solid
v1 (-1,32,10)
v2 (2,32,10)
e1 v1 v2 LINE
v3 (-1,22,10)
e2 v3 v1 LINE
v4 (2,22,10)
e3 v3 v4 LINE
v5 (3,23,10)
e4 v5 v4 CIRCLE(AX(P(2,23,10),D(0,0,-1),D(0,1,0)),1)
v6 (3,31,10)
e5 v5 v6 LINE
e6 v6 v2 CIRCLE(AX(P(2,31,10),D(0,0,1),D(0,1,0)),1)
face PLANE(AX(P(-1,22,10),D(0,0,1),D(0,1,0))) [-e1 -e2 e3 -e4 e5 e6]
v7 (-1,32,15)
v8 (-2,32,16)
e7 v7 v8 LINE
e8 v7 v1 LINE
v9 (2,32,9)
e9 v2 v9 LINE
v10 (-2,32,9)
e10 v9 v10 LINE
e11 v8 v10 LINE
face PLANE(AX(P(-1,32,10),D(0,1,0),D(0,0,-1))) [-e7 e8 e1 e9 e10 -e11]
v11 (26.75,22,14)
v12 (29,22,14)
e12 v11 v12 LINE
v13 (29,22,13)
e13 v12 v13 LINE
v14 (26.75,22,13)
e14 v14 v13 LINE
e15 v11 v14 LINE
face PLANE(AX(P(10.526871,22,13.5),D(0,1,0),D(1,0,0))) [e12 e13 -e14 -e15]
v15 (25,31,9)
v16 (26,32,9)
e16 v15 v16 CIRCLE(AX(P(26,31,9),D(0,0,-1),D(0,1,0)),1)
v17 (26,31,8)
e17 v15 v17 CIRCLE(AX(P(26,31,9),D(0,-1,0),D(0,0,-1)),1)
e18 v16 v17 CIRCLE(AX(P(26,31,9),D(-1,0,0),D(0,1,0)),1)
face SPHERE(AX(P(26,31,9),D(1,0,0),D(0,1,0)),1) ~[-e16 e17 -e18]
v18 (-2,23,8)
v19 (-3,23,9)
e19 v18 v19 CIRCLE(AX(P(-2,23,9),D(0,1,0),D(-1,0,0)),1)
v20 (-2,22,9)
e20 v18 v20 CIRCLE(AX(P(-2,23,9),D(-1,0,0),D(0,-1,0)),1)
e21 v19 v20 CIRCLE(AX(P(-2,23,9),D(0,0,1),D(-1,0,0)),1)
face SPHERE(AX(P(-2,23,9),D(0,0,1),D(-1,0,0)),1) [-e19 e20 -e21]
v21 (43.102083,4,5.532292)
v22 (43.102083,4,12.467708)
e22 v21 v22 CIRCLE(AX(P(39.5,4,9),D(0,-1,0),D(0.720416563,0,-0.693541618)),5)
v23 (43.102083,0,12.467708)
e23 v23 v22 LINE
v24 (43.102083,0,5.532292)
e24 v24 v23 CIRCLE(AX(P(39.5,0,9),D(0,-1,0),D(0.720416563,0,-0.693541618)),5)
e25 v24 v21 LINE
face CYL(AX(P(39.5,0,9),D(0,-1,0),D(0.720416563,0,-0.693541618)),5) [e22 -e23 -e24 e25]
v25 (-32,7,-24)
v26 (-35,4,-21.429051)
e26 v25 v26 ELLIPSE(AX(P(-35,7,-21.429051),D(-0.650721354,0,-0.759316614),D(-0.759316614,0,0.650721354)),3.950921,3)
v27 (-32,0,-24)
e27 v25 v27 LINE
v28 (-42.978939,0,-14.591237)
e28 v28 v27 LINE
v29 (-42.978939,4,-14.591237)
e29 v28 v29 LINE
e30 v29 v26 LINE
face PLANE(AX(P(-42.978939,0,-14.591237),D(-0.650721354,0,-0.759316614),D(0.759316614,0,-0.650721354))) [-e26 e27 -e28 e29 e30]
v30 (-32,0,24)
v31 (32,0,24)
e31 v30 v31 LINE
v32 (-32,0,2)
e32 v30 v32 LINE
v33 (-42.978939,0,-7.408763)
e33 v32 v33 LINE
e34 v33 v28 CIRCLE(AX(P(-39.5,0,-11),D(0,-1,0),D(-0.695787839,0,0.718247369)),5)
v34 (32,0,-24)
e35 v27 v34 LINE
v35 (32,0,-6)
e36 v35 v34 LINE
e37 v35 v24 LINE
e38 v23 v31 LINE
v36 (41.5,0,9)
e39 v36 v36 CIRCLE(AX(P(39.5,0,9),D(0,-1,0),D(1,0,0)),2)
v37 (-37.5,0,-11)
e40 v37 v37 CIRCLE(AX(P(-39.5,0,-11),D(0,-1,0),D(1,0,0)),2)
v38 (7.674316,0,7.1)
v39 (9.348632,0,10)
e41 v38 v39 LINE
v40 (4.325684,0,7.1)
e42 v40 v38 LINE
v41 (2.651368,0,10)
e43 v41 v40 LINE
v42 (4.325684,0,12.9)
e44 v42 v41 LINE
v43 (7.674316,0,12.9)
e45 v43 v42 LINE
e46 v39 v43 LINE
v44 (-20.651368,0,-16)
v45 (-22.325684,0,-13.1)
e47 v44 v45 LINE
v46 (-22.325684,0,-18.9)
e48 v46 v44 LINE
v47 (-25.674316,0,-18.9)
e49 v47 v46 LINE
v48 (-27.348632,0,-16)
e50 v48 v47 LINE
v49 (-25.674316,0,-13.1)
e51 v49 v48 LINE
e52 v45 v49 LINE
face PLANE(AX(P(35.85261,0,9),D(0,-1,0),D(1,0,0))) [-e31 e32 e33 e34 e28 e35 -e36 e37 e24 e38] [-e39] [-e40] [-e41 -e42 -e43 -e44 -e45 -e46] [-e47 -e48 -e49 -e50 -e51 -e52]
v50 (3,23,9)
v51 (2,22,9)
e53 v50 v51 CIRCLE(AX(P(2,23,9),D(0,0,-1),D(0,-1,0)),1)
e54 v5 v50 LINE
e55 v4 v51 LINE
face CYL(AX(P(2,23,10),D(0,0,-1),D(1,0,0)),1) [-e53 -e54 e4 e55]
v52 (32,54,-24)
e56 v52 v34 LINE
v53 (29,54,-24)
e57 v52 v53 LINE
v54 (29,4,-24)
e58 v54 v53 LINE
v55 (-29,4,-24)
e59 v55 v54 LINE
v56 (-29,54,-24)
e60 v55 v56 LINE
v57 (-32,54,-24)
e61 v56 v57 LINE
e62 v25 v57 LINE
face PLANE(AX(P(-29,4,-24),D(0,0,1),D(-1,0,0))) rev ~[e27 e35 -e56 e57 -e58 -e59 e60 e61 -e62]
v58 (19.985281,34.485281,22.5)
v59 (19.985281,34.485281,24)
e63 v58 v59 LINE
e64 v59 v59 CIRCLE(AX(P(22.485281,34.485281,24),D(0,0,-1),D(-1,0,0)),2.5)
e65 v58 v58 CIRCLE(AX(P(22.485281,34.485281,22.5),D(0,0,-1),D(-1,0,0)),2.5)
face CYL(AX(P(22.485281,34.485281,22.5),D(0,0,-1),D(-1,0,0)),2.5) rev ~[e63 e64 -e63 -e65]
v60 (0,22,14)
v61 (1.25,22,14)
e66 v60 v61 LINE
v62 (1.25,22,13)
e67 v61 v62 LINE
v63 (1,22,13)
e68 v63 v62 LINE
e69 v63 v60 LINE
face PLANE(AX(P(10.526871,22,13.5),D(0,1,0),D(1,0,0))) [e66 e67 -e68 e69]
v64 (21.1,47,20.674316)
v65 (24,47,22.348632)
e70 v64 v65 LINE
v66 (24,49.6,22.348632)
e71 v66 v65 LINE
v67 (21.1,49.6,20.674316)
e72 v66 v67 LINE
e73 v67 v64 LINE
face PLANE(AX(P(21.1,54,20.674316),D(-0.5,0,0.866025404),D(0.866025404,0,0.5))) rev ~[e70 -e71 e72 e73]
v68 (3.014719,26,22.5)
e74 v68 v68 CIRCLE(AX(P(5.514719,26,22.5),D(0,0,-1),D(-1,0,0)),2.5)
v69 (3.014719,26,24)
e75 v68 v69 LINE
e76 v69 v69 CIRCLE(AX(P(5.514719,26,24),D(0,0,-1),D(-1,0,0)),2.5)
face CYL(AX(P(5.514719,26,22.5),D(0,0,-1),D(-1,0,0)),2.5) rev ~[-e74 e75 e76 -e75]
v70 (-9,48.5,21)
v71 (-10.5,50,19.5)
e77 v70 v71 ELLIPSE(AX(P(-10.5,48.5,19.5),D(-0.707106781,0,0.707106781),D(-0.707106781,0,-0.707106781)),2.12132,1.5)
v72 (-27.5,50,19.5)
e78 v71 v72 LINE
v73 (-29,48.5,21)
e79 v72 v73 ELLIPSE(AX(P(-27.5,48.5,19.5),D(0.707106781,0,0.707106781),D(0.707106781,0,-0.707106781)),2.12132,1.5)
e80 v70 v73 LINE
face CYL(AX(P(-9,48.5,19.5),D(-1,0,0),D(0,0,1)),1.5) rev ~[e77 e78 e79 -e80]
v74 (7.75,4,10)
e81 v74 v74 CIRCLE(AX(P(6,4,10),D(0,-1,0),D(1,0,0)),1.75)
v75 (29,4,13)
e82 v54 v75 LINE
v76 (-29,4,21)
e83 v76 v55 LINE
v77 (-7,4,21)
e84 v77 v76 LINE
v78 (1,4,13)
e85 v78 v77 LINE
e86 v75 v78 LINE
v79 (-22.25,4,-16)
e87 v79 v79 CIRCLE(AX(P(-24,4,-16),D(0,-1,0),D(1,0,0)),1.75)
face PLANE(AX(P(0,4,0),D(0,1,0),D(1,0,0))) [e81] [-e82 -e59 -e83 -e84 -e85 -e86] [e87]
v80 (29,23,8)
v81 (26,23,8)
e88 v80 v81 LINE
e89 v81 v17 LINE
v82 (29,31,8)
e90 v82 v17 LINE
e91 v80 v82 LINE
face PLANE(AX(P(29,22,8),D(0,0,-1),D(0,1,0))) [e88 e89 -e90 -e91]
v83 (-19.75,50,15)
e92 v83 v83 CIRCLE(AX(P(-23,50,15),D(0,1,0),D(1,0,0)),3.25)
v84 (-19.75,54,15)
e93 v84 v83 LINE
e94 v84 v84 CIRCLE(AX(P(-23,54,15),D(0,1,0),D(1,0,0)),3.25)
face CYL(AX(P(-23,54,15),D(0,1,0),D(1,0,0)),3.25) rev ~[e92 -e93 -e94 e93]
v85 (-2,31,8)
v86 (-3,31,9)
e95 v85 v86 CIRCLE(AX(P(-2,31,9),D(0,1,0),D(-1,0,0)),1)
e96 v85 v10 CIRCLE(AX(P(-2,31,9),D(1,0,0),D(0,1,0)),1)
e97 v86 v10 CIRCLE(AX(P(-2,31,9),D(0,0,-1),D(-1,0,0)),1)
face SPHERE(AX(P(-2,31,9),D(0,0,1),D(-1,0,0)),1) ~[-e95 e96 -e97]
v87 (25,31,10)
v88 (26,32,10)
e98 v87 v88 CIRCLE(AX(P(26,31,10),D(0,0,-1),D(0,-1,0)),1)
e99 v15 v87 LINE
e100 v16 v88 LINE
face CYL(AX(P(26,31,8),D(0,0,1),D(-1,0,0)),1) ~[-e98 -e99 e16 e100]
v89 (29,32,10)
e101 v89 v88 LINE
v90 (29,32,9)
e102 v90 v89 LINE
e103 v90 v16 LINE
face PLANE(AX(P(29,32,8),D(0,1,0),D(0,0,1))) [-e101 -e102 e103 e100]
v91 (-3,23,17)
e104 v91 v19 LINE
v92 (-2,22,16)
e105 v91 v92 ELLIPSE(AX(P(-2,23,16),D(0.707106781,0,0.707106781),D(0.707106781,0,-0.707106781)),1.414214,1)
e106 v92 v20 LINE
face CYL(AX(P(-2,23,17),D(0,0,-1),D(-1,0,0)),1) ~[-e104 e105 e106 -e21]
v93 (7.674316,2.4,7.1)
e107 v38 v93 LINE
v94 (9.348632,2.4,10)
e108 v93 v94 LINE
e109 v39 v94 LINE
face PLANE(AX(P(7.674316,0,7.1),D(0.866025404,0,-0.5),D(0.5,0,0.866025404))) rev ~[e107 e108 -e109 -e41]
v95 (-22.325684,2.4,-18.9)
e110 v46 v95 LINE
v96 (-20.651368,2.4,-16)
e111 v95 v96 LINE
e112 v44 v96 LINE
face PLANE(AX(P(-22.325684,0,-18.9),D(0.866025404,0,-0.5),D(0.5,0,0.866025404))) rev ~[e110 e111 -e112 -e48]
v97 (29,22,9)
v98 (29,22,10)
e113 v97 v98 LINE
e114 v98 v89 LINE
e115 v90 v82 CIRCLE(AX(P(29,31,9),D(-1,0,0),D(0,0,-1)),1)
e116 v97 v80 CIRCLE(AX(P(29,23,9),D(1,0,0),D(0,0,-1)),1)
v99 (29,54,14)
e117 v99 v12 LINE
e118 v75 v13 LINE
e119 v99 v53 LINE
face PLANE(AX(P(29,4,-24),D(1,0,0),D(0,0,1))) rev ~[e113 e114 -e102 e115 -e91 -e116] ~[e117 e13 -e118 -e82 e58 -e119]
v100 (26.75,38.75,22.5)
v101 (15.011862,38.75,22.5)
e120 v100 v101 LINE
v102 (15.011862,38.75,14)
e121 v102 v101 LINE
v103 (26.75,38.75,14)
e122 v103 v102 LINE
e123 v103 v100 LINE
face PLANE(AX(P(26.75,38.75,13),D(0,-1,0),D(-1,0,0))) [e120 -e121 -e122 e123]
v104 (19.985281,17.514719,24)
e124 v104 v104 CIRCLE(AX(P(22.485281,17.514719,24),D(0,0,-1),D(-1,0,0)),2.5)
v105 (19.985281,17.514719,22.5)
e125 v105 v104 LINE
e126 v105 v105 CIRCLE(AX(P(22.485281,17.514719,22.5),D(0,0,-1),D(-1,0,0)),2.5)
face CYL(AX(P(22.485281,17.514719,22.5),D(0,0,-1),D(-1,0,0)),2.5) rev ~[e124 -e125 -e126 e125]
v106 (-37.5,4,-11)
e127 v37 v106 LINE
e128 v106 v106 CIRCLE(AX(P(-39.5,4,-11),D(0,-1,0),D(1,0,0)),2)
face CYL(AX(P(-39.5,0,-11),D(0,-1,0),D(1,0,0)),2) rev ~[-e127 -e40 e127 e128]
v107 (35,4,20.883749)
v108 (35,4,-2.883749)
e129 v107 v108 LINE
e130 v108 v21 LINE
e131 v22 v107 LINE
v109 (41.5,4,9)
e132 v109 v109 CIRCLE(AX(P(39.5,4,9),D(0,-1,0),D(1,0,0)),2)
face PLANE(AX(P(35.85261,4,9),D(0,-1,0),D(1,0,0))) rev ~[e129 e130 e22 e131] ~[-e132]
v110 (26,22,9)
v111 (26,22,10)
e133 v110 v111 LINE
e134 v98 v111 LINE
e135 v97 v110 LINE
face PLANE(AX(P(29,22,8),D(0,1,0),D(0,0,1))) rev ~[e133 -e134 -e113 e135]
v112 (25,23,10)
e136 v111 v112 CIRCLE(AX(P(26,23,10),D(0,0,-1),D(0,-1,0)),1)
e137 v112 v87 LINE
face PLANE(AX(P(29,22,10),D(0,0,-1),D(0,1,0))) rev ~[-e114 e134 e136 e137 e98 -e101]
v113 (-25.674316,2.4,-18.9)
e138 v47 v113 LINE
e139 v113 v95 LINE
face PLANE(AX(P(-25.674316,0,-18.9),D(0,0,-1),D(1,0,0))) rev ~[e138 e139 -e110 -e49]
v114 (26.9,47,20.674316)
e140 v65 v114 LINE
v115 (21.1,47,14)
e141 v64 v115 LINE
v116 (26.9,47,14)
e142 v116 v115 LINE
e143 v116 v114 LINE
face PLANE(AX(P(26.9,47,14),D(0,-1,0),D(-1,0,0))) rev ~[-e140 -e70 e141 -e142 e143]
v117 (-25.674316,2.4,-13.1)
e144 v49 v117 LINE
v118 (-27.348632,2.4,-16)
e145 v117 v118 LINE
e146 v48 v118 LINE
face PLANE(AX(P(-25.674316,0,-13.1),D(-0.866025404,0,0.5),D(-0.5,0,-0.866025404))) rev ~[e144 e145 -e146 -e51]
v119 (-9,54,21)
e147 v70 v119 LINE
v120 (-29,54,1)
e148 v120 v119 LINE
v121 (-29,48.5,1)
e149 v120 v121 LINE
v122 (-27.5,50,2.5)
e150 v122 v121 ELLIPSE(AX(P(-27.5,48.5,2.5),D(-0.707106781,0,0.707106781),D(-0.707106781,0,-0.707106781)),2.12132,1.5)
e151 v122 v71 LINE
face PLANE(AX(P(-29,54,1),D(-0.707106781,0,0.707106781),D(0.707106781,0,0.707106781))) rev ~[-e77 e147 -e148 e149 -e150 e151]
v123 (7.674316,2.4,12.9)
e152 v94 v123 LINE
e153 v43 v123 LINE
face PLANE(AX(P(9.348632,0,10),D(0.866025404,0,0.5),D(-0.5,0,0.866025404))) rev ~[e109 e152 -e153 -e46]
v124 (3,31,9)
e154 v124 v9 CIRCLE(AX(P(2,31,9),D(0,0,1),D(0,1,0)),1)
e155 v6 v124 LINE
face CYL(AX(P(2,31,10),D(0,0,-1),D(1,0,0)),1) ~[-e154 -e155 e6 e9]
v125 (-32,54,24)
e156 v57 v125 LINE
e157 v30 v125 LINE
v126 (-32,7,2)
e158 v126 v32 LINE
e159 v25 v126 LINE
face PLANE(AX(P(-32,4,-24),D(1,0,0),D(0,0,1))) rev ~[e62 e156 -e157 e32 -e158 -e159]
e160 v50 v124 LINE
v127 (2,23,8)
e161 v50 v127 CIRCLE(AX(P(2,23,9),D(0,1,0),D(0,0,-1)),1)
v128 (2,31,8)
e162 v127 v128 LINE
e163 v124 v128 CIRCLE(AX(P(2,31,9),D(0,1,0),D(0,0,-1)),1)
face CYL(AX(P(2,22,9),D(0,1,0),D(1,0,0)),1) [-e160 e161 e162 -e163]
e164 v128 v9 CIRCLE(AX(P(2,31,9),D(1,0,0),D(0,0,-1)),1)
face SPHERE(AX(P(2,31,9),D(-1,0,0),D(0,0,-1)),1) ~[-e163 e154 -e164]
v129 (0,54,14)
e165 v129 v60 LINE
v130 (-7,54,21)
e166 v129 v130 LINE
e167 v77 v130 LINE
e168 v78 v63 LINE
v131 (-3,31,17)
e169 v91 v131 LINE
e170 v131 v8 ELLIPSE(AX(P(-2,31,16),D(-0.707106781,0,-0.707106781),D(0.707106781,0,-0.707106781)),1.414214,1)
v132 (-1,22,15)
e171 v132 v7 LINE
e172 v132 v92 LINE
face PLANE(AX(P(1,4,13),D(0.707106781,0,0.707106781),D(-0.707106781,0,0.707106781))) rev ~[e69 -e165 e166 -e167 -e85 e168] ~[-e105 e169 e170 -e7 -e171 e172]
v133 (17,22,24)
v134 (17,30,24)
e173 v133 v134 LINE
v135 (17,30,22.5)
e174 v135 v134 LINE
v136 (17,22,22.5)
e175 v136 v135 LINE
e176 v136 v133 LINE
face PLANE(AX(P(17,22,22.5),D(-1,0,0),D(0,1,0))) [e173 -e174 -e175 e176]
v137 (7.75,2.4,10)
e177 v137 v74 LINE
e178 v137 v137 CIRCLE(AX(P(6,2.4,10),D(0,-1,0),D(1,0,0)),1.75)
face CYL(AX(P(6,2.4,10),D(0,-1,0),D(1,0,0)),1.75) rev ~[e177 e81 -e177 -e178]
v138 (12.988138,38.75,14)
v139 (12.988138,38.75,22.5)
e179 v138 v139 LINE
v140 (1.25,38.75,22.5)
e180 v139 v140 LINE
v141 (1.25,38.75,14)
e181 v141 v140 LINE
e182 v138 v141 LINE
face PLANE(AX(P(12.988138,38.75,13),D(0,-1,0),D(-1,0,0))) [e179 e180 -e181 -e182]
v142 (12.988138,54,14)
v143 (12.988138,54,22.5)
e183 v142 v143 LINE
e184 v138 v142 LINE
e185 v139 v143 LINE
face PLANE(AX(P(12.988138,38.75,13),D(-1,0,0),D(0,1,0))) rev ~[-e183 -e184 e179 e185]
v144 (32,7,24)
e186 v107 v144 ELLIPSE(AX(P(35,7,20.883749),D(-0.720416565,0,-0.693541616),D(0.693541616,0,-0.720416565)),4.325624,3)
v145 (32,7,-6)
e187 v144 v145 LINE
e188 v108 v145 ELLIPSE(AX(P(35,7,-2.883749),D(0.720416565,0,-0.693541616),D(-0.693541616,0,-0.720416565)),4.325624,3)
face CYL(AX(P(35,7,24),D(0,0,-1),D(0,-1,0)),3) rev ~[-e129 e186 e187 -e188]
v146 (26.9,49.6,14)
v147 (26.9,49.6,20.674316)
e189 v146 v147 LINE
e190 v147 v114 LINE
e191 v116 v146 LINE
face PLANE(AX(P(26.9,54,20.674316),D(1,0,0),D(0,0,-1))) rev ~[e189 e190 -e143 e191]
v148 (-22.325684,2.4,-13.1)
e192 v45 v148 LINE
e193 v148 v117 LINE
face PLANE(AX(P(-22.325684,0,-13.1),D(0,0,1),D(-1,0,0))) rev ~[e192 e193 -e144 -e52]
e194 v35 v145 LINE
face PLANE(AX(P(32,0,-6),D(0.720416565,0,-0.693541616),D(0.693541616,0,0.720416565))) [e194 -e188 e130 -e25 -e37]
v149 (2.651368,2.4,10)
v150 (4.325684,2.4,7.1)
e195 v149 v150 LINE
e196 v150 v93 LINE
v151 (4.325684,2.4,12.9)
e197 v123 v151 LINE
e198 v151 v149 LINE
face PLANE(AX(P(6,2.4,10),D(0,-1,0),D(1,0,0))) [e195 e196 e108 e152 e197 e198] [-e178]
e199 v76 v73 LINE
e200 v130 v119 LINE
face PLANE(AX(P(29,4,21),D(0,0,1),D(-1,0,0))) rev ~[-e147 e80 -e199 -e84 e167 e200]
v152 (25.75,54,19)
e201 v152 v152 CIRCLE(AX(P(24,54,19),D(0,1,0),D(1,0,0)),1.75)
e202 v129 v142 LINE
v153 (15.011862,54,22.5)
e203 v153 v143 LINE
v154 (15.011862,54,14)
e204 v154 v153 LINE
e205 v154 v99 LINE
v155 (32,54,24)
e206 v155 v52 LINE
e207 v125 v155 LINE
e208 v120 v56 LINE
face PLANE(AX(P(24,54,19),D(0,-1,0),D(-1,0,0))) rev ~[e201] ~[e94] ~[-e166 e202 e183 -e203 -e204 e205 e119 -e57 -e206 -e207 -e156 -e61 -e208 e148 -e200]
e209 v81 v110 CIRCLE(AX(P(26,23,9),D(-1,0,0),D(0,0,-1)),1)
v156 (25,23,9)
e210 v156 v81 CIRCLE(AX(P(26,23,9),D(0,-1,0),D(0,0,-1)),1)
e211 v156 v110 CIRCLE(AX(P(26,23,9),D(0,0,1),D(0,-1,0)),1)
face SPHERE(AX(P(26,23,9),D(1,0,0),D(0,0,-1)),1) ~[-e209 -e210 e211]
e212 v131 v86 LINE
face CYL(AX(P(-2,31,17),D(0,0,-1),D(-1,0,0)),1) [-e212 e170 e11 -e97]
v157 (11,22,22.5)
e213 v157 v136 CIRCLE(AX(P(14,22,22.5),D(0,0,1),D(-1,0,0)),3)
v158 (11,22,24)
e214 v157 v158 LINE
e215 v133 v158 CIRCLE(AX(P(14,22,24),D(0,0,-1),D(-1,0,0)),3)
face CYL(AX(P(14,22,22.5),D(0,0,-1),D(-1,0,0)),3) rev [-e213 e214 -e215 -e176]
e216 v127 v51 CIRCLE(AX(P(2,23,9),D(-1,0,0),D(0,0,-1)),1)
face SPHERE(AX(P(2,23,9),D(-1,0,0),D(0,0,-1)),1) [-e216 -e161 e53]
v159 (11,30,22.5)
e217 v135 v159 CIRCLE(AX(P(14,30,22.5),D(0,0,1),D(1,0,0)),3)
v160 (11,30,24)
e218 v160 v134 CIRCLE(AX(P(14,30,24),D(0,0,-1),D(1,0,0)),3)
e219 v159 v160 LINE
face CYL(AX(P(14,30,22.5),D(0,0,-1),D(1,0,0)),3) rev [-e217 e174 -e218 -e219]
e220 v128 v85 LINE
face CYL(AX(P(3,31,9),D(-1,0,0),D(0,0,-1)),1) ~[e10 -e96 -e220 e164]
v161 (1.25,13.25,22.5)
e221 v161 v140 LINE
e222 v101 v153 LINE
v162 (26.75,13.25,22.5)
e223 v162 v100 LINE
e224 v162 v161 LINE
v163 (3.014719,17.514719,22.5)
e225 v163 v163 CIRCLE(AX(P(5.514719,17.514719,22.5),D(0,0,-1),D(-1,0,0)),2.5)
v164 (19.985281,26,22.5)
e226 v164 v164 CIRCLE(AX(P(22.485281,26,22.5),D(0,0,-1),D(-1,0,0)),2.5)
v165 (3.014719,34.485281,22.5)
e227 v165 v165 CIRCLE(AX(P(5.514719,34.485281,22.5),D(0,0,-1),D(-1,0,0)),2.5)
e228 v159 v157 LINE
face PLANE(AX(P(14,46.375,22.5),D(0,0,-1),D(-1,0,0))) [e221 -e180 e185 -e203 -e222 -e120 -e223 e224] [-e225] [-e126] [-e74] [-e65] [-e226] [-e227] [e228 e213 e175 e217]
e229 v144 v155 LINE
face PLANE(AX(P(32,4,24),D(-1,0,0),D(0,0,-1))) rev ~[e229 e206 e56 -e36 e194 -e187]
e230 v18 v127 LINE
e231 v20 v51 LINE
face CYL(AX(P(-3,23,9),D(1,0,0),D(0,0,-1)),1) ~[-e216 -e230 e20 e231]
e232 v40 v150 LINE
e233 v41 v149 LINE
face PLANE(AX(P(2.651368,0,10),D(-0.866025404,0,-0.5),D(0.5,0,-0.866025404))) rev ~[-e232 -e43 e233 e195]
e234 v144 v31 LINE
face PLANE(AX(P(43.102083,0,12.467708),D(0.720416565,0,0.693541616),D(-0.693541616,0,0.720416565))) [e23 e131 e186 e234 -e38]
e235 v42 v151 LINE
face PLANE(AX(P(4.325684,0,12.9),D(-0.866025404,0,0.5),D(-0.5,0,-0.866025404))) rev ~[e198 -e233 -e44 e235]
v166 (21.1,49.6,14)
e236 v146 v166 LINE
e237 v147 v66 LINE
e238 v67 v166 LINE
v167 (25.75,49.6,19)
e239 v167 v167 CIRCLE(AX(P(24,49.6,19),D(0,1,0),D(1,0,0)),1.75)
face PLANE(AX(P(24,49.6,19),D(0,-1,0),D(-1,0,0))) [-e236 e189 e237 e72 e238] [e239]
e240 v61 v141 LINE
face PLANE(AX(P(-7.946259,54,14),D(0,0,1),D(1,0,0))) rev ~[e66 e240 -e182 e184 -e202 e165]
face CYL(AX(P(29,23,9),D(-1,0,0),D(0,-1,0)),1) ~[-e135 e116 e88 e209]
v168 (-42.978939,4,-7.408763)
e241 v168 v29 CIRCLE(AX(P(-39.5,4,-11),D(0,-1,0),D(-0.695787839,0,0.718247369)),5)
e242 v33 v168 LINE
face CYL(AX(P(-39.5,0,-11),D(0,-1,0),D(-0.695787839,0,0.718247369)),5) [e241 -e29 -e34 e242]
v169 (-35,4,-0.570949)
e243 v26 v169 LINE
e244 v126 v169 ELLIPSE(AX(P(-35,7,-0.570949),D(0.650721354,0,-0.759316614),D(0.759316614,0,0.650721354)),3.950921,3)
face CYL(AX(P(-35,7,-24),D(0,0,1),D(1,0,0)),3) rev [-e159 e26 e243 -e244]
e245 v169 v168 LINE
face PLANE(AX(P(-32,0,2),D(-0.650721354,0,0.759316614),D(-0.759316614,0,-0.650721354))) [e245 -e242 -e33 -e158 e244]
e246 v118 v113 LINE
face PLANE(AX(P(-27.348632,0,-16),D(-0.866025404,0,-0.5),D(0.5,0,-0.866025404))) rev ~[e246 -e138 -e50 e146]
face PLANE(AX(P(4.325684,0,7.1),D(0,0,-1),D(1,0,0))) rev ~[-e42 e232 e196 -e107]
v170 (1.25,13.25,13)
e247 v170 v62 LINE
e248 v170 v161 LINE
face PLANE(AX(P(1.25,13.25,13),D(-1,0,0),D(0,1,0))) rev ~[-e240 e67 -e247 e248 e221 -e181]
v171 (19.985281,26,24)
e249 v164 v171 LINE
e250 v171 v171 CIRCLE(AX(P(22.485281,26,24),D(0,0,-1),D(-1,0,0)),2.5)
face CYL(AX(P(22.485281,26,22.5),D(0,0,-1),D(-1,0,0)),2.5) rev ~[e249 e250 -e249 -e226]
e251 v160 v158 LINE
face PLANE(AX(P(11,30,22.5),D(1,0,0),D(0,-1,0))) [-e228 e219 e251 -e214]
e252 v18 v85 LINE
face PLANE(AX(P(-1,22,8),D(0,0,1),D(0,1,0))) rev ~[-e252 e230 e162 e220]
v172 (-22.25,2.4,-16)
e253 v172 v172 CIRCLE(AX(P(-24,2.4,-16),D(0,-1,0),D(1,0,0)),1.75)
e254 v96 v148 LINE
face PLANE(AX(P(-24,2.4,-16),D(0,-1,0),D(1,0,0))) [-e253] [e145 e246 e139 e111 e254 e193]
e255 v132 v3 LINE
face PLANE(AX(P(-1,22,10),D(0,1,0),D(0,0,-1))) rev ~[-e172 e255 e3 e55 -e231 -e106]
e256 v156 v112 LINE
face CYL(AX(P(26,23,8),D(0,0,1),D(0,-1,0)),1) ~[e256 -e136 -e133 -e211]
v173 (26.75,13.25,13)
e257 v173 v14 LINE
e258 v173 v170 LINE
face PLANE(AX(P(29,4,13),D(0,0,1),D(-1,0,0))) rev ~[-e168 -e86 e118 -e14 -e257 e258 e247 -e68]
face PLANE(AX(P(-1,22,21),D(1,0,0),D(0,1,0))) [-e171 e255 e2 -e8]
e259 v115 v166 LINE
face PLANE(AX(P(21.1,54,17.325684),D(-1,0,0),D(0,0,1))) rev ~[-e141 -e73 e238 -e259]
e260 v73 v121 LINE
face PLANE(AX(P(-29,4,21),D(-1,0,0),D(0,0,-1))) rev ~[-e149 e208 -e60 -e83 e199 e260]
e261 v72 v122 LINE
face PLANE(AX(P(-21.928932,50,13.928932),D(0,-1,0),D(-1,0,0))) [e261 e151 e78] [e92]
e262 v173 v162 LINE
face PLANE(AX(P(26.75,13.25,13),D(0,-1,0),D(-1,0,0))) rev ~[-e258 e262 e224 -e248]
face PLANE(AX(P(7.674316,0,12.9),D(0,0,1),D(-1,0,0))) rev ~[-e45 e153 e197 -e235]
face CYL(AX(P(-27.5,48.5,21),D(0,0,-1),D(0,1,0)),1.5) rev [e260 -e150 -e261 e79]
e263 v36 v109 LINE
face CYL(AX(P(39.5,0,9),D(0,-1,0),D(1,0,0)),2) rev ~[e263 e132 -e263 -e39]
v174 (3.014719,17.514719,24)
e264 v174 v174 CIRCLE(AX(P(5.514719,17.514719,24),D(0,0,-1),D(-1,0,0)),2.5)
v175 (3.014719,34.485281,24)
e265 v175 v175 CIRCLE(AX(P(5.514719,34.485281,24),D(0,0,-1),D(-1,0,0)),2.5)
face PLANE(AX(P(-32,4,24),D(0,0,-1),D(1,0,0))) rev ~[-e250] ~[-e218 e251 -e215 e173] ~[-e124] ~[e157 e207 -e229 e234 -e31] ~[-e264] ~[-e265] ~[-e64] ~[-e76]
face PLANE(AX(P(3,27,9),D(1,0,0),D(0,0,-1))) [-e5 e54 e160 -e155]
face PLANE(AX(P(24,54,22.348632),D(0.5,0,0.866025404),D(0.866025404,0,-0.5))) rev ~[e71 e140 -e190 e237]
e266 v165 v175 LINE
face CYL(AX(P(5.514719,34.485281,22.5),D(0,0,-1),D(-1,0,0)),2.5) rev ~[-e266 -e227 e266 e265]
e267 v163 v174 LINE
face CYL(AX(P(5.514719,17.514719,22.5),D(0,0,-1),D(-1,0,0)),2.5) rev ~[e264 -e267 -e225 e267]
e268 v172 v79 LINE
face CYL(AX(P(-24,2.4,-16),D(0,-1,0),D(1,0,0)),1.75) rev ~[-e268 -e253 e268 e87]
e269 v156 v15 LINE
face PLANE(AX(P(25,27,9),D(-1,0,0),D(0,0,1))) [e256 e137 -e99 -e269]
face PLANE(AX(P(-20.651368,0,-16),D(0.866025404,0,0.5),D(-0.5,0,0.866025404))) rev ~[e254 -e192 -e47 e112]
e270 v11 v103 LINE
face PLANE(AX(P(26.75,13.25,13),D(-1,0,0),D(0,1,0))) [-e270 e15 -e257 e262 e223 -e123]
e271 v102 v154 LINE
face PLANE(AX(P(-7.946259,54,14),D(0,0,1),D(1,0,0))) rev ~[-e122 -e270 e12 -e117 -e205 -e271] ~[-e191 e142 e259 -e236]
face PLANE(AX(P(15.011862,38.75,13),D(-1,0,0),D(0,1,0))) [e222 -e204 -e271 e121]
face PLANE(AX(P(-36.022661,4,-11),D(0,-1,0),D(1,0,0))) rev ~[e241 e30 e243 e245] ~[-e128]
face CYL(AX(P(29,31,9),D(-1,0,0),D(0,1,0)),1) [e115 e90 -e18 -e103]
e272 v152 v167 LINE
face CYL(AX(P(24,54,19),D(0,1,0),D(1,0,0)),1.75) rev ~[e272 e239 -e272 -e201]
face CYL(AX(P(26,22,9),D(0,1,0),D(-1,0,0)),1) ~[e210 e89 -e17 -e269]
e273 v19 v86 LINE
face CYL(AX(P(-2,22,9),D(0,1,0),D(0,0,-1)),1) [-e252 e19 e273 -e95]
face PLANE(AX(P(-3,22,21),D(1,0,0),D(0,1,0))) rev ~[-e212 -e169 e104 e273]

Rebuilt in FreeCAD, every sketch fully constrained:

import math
import FreeCAD as App
import Part
import Sketcher
Q = App.Units.Quantity


def edges_at(feature, points):
    """Names of the edges that pass closest to the given points."""
    edges = feature.Shape.Edges
    near = lambda p: min(range(len(edges)), key=lambda i: edges[i].distToShape(Part.Vertex(*p))[0])
    return sorted({f"Edge{near(p) + 1}" for p in points})


def add_polygon(sketch, points):
    """Adds a closed chain of lines whose ends are joined by coincident constraints."""
    first, n = sketch.GeometryCount, len(points)
    for a, b in zip(points, points[1:] + points[:1]):
        sketch.addGeometry(Part.LineSegment(App.Vector(*a, 0), App.Vector(*b, 0)), False)
    for i in range(n):
        sketch.addConstraint(Sketcher.Constraint("Coincident", first + i, 2, first + (i + 1) % n, 1))

doc = App.newDocument("Part")
body = doc.addObject("PartDesign::Body", "Body")

# Sketch on XZ plane
sketch1 = doc.addObject("Sketcher::SketchObject", "Sketch")
body.addObject(sketch1)
sketch1.AttachmentSupport = (doc.XZ_Plane, [""])
sketch1.MapMode = "FlatFace"
add_polygon(sketch1, [(-32, -24), (-32, 24), (32, 24), (32, -24)])  # lines 0-3
sketch1.addConstraint(Sketcher.Constraint("Vertical", 0))
sketch1.addConstraint(Sketcher.Constraint("Horizontal", 1))
sketch1.addConstraint(Sketcher.Constraint("Vertical", 2))
sketch1.addConstraint(Sketcher.Constraint("Horizontal", 3))
sketch1.addConstraint(Sketcher.Constraint("Symmetric", 0, 2, 2, 2, -1, 1))
sketch1.addConstraint(Sketcher.Constraint("DistanceX", 1, 1, 1, 2, 64.0))
sketch1.addConstraint(Sketcher.Constraint("DistanceY", 0, 1, 0, 2, 48.0))
pad1 = doc.addObject("PartDesign::Pad", "Pad")
body.addObject(pad1)
pad1.Profile = sketch1
pad1.Length = 4
pad1.Reversed = True

# Sketch on XZ plane
sketch2 = doc.addObject("Sketcher::SketchObject", "Sketch001")
body.addObject(sketch2)
sketch2.AttachmentSupport = (doc.XZ_Plane, [""])
sketch2.MapMode = "FlatFace"
add_polygon(sketch2, [(-20.7, -16), (-22.3, -13.1), (-25.7, -13.1), (-27.3, -16), (-25.7, -18.9), (-22.3, -18.9)])  # lines 0-5
sketch2.addConstraint(Sketcher.Constraint("Horizontal", 1))
sketch2.addConstraint(Sketcher.Constraint("Horizontal", 4))
sketch2.addConstraint(Sketcher.Constraint("Parallel", 0, 3))
sketch2.addConstraint(Sketcher.Constraint("Parallel", 2, 5))
sketch2.addConstraint(Sketcher.Constraint("Horizontal", 2, 2, 5, 2))
sketch2.addConstraint(Sketcher.Constraint("Vertical", 1, 2, 3, 2))
sketch2.addConstraint(Sketcher.Constraint("Vertical", 0, 2, 4, 2))
sketch2.addConstraint(Sketcher.Constraint("Angle", 0, Q("120 deg")))
sketch2.addConstraint(Sketcher.Constraint("DistanceY", 2, 2, -1, 1, 16.0))
sketch2.addConstraint(Sketcher.Constraint("DistanceY", 0, 2, -1, 1, 13.1))
sketch2.addConstraint(Sketcher.Constraint("DistanceX", 1, 2, 1, 1, 3.348632))
sketch2.addConstraint(Sketcher.Constraint("DistanceX", 2, 2, -1, 1, 27.348632))
pocket1 = doc.addObject("PartDesign::Pocket", "Pocket")
body.addObject(pocket1)
pocket1.Profile = sketch2
pocket1.Length = 2.4

# Sketch on XZ plane
sketch3 = doc.addObject("Sketcher::SketchObject", "Sketch002")
body.addObject(sketch3)
sketch3.AttachmentSupport = (doc.XZ_Plane, [""])
sketch3.MapMode = "FlatFace"
add_polygon(sketch3, [(9.3, 10), (7.7, 12.9), (4.3, 12.9), (2.7, 10), (4.3, 7.1), (7.7, 7.1)])  # lines 0-5
sketch3.addConstraint(Sketcher.Constraint("Horizontal", 1))
sketch3.addConstraint(Sketcher.Constraint("Horizontal", 4))
sketch3.addConstraint(Sketcher.Constraint("Parallel", 0, 3))
sketch3.addConstraint(Sketcher.Constraint("Parallel", 2, 5))
sketch3.addConstraint(Sketcher.Constraint("Horizontal", 2, 2, 5, 2))
sketch3.addConstraint(Sketcher.Constraint("Vertical", 1, 2, 3, 2))
sketch3.addConstraint(Sketcher.Constraint("Vertical", 0, 2, 4, 2))
sketch3.addConstraint(Sketcher.Constraint("Angle", 0, Q("120 deg")))
sketch3.addConstraint(Sketcher.Constraint("DistanceY", -1, 1, 2, 2, 10.0))
sketch3.addConstraint(Sketcher.Constraint("DistanceY", -1, 1, 0, 2, 12.9))
sketch3.addConstraint(Sketcher.Constraint("DistanceX", 1, 2, 1, 1, 3.348632))
sketch3.addConstraint(Sketcher.Constraint("DistanceX", -1, 1, 2, 2, 2.651368))
pocket2 = doc.addObject("PartDesign::Pocket", "Pocket001")
body.addObject(pocket2)
pocket2.Profile = sketch3
pocket2.Length = 2.4

# Sketch on XZ plane
sketch4 = doc.addObject("Sketcher::SketchObject", "Sketch003")
body.addObject(sketch4)
sketch4.AttachmentSupport = (doc.XZ_Plane, [""])
sketch4.MapMode = "FlatFace"
sketch4.AttachmentOffset = App.Placement(App.Vector(0, 0, -4), App.Rotation())
add_polygon(sketch4, [(-29, 21), (-29, -24), (-32, -24), (-32, 24), (32, 24), (32, -24), (29, -24), (29, 21)])  # lines 0-7
sketch4.addConstraint(Sketcher.Constraint("Vertical", 0))
sketch4.addConstraint(Sketcher.Constraint("Horizontal", 1))
sketch4.addConstraint(Sketcher.Constraint("Vertical", 2))
sketch4.addConstraint(Sketcher.Constraint("Horizontal", 3))
sketch4.addConstraint(Sketcher.Constraint("Vertical", 4))
sketch4.addConstraint(Sketcher.Constraint("Horizontal", 5))
sketch4.addConstraint(Sketcher.Constraint("Vertical", 6))
sketch4.addConstraint(Sketcher.Constraint("Horizontal", 7))
sketch4.addConstraint(Sketcher.Constraint("Symmetric", 1, 2, 3, 2, -1, 1))
sketch4.addConstraint(Sketcher.Constraint("Symmetric", 0, 2, 5, 2, -2))
sketch4.addConstraint(Sketcher.Constraint("DistanceX", 1, 2, 1, 1, 3.0))
sketch4.addConstraint(Sketcher.Constraint("DistanceX", 3, 1, 3, 2, 64.0))
sketch4.addConstraint(Sketcher.Constraint("DistanceY", 0, 2, 0, 1, 45.0))
sketch4.addConstraint(Sketcher.Constraint("DistanceY", 2, 1, 2, 2, 48.0))
pad2 = doc.addObject("PartDesign::Pad", "Pad001")
body.addObject(pad2)
pad2.Profile = sketch4
pad2.Length = 50
pad2.Reversed = True

# Sketch on XZ plane
sketch5 = doc.addObject("Sketcher::SketchObject", "Sketch004")
body.addObject(sketch5)
sketch5.AttachmentSupport = (doc.XZ_Plane, [""])
sketch5.MapMode = "FlatFace"
sketch5.AttachmentOffset = App.Placement(App.Vector(0, 0, -4), App.Rotation())
add_polygon(sketch5, [(29, 13), (1, 13), (-7, 21), (29, 21)])  # lines 0-3
sketch5.addConstraint(Sketcher.Constraint("Horizontal", 0))
sketch5.addConstraint(Sketcher.Constraint("Horizontal", 2))
sketch5.addConstraint(Sketcher.Constraint("Vertical", 3))
sketch5.addConstraint(Sketcher.Constraint("DistanceX", 0, 2, 0, 1, 28.0))
sketch5.addConstraint(Sketcher.Constraint("DistanceX", 2, 1, 2, 2, 36.0))
sketch5.addConstraint(Sketcher.Constraint("DistanceY", 3, 2, 3, 1, 8.0))
sketch5.addConstraint(Sketcher.Constraint("DistanceX", -1, 1, 0, 2, 1.0))
sketch5.addConstraint(Sketcher.Constraint("DistanceY", -1, 1, 0, 2, 13.0))
pad3 = doc.addObject("PartDesign::Pad", "Pad002")
body.addObject(pad3)
pad3.Profile = sketch5
pad3.Length = 50
pad3.Reversed = True

# Sketch on XY plane
sketch6 = doc.addObject("Sketcher::SketchObject", "Sketch005")
body.addObject(sketch6)
sketch6.AttachmentSupport = (doc.XY_Plane, [""])
sketch6.MapMode = "FlatFace"
sketch6.AttachmentOffset = App.Placement(App.Vector(0, 0, 13), App.Rotation())
add_polygon(sketch6, [(15, 54), (15, 38.8), (26.8, 38.8), (26.8, 13.2), (1.2, 13.2), (1.2, 38.8), (13, 38.8), (13, 54)])  # lines 0-7
sketch6.addConstraint(Sketcher.Constraint("Vertical", 0))
sketch6.addConstraint(Sketcher.Constraint("Horizontal", 1))
sketch6.addConstraint(Sketcher.Constraint("Vertical", 2))
sketch6.addConstraint(Sketcher.Constraint("Horizontal", 3))
sketch6.addConstraint(Sketcher.Constraint("Vertical", 4))
sketch6.addConstraint(Sketcher.Constraint("Horizontal", 5))
sketch6.addConstraint(Sketcher.Constraint("Vertical", 6))
sketch6.addConstraint(Sketcher.Constraint("Horizontal", 7))
sketch6.addConstraint(Sketcher.Constraint("Horizontal", 1, 2, 4, 2))
sketch6.addConstraint(Sketcher.Constraint("Equal", 1, 5))
sketch6.addConstraint(Sketcher.Constraint("Equal", 3, 2))
sketch6.addConstraint(Sketcher.Constraint("DistanceX", 3, 2, 3, 1, 25.5))
sketch6.addConstraint(Sketcher.Constraint("DistanceY", -1, 1, 6, 2, 54.0))
sketch6.addConstraint(Sketcher.Constraint("DistanceY", 0, 2, 0, 1, 15.25))
sketch6.addConstraint(Sketcher.Constraint("DistanceX", -1, 1, 1, 2, 26.75))
sketch6.addConstraint(Sketcher.Constraint("DistanceX", 1, 1, 1, 2, 11.738138))
pocket3 = doc.addObject("PartDesign::Pocket", "Pocket002")
body.addObject(pocket3)
pocket3.Profile = sketch6
pocket3.Length = 9.5
pocket3.Reversed = True

# Sketch on XZ plane
sketch7 = doc.addObject("Sketcher::SketchObject", "Sketch006")
body.addObject(sketch7)
sketch7.AttachmentSupport = (doc.XZ_Plane, [""])
sketch7.MapMode = "FlatFace"
sketch7.AttachmentOffset = App.Placement(App.Vector(0, 0, -54), App.Rotation())
add_polygon(sketch7, [(-7.9, 13), (-7.9, 14), (29, 14), (29, 13)])  # lines 0-3
sketch7.addConstraint(Sketcher.Constraint("Vertical", 0))
sketch7.addConstraint(Sketcher.Constraint("Horizontal", 1))
sketch7.addConstraint(Sketcher.Constraint("Vertical", 2))
sketch7.addConstraint(Sketcher.Constraint("Horizontal", 3))
sketch7.addConstraint(Sketcher.Constraint("DistanceY", 0, 1, 0, 2, 1.0))
sketch7.addConstraint(Sketcher.Constraint("DistanceY", -1, 1, 0, 2, 14.0))
sketch7.addConstraint(Sketcher.Constraint("DistanceX", -1, 1, 1, 2, 29.0))
sketch7.addConstraint(Sketcher.Constraint("DistanceX", 1, 1, 1, 2, 36.946259))
pocket4 = doc.addObject("PartDesign::Pocket", "Pocket003")
body.addObject(pocket4)
pocket4.Profile = sketch7
pocket4.Length = 32
pocket4.Reversed = True

# Sketch on XZ plane
sketch8 = doc.addObject("Sketcher::SketchObject", "Sketch007")
body.addObject(sketch8)
sketch8.AttachmentSupport = (doc.XZ_Plane, [""])
sketch8.MapMode = "FlatFace"
sketch8.AttachmentOffset = App.Placement(App.Vector(0, 0, -54), App.Rotation())
add_polygon(sketch8, [(-9, 21), (-29, 1), (-29, 21)])  # lines 0-2
sketch8.addGeometry(Part.Circle(App.Vector(-23, 15, 0), App.Vector(0, 0, 1), 3.2), False)  # 3
sketch8.addConstraint(Sketcher.Constraint("Vertical", 1))
sketch8.addConstraint(Sketcher.Constraint("Horizontal", 2))
sketch8.addConstraint(Sketcher.Constraint("Equal", 2, 1))
sketch8.addConstraint(Sketcher.Constraint("Diameter", 3, 6.5))
sketch8.addConstraint(Sketcher.Constraint("DistanceX", 2, 1, 2, 2, 20.0))
sketch8.addConstraint(Sketcher.Constraint("DistanceX", 3, 3, -1, 1, 23.0))
sketch8.addConstraint(Sketcher.Constraint("DistanceY", -1, 1, 3, 3, 15.0))
sketch8.addConstraint(Sketcher.Constraint("DistanceX", 0, 2, -1, 1, 29.0))
sketch8.addConstraint(Sketcher.Constraint("DistanceY", -1, 1, 0, 2, 1.0))
pad4 = doc.addObject("PartDesign::Pad", "Pad003")
body.addObject(pad4)
pad4.Profile = sketch8
pad4.Length = 4

# Sketch on XZ plane
sketch9 = doc.addObject("Sketcher::SketchObject", "Sketch008")
body.addObject(sketch9)
sketch9.AttachmentSupport = (doc.XZ_Plane, [""])
sketch9.MapMode = "FlatFace"
sketch9.AttachmentOffset = App.Placement(App.Vector(0, 0, -54), App.Rotation())
add_polygon(sketch9, [(24, 15.7), (21.1, 17.3), (21.1, 20.7), (24, 22.3), (26.9, 20.7), (26.9, 17.3)])  # lines 0-5
sketch9.addConstraint(Sketcher.Constraint("Vertical", 1))
sketch9.addConstraint(Sketcher.Constraint("Vertical", 4))
sketch9.addConstraint(Sketcher.Constraint("Parallel", 0, 3))
sketch9.addConstraint(Sketcher.Constraint("Parallel", 2, 5))
sketch9.addConstraint(Sketcher.Constraint("Horizontal", 1, 2, 3, 2))
sketch9.addConstraint(Sketcher.Constraint("Horizontal", 0, 2, 4, 2))
sketch9.addConstraint(Sketcher.Constraint("Vertical", 2, 2, 5, 2))
sketch9.addConstraint(Sketcher.Constraint("Angle", 0, Q("150 deg")))
sketch9.addConstraint(Sketcher.Constraint("DistanceX", -1, 1, 2, 2, 24.0))
sketch9.addConstraint(Sketcher.Constraint("DistanceX", -1, 1, 0, 2, 21.1))
sketch9.addConstraint(Sketcher.Constraint("DistanceY", 1, 1, 1, 2, 3.348632))
sketch9.addConstraint(Sketcher.Constraint("DistanceY", -1, 1, 2, 2, 22.348632))
pocket5 = doc.addObject("PartDesign::Pocket", "Pocket004")
body.addObject(pocket5)
pocket5.Profile = sketch9
pocket5.Length = 7
pocket5.Reversed = True

# Sketch on XY plane
sketch10 = doc.addObject("Sketcher::SketchObject", "Sketch009")
body.addObject(sketch10)
sketch10.AttachmentSupport = (doc.XY_Plane, [""])
sketch10.MapMode = "FlatFace"
sketch10.AttachmentOffset = App.Placement(App.Vector(0, 0, 14), App.Rotation())
add_polygon(sketch10, [(26.9, 49.6), (26.9, 47), (21.1, 47), (21.1, 49.6)])  # lines 0-3
sketch10.addConstraint(Sketcher.Constraint("Vertical", 0))
sketch10.addConstraint(Sketcher.Constraint("Horizontal", 1))
sketch10.addConstraint(Sketcher.Constraint("Vertical", 2))
sketch10.addConstraint(Sketcher.Constraint("Horizontal", 3))
sketch10.addConstraint(Sketcher.Constraint("DistanceX", 1, 2, 1, 1, 5.8))
sketch10.addConstraint(Sketcher.Constraint("DistanceY", 0, 2, 0, 1, 2.6))
sketch10.addConstraint(Sketcher.Constraint("DistanceY", -1, 1, 0, 2, 47.0))
sketch10.addConstraint(Sketcher.Constraint("DistanceX", -1, 1, 0, 2, 26.9))
pocket6 = doc.addObject("PartDesign::Pocket", "Pocket005")
body.addObject(pocket6)
pocket6.Profile = sketch10
pocket6.Length = 5
pocket6.Reversed = True

# Sketch on XZ plane
sketch11 = doc.addObject("Sketcher::SketchObject", "Sketch010")
body.addObject(sketch11)
sketch11.AttachmentSupport = (doc.XZ_Plane, [""])
sketch11.MapMode = "FlatFace"
sketch11.AttachmentOffset = App.Placement(App.Vector(0, 0, -54), App.Rotation())
add_polygon(sketch11, [(26.9, 17.3), (24, 15.7), (21.1, 17.3), (21.1, 20.7), (24, 22.3), (26.9, 20.7)])  # lines 0-5
sketch11.addGeometry(Part.Circle(App.Vector(24, 19, 0), App.Vector(0, 0, 1), 1.8), False)  # 6
sketch11.addConstraint(Sketcher.Constraint("Vertical", 2))
sketch11.addConstraint(Sketcher.Constraint("Vertical", 5))
sketch11.addConstraint(Sketcher.Constraint("Parallel", 0, 3))
sketch11.addConstraint(Sketcher.Constraint("Parallel", 1, 4))
sketch11.addConstraint(Sketcher.Constraint("Horizontal", 2, 2, 4, 2))
sketch11.addConstraint(Sketcher.Constraint("Horizontal", 1, 2, 5, 2))
sketch11.addConstraint(Sketcher.Constraint("Vertical", 6, 3, 0, 2))
sketch11.addConstraint(Sketcher.Constraint("Vertical", 0, 2, 3, 2))
sketch11.addConstraint(Sketcher.Constraint("Diameter", 6, 3.5))
sketch11.addConstraint(Sketcher.Constraint("Angle", 0, Q("-150 deg")))
sketch11.addConstraint(Sketcher.Constraint("DistanceX", -1, 1, 6, 3, 24.0))
sketch11.addConstraint(Sketcher.Constraint("DistanceY", -1, 1, 6, 3, 19.0))
sketch11.addConstraint(Sketcher.Constraint("DistanceX", -1, 1, 1, 2, 21.1))
sketch11.addConstraint(Sketcher.Constraint("DistanceY", 2, 1, 2, 2, 3.348632))
sketch11.addConstraint(Sketcher.Constraint("DistanceY", -1, 1, 0, 2, 15.651368))
pad5 = doc.addObject("PartDesign::Pad", "Pad004")
body.addObject(pad5)
pad5.Profile = sketch11
pad5.Length = 4.4
doc.recompute()

fillet = doc.addObject("PartDesign::Fillet", "Fillet")
body.addObject(fillet)
fillet.Base = (pad5, edges_at(pad5, [(-29, 50, 11), (-19, 50, 21)]))
fillet.Radius = 1.5

# Sketch on XZ plane
sketch12 = doc.addObject("Sketcher::SketchObject", "Sketch011")
body.addObject(sketch12)
sketch12.AttachmentSupport = (doc.XZ_Plane, [""])
sketch12.MapMode = "FlatFace"
sketch12.addGeometry(Part.LineSegment(App.Vector(43.1, 12.5, 0), App.Vector(32, 24, 0)), False)
sketch12.addGeometry(Part.LineSegment(App.Vector(32, 24, 0), App.Vector(32, -6, 0)), False)
sketch12.addGeometry(Part.LineSegment(App.Vector(32, -6, 0), App.Vector(43.1, 5.5, 0)), False)
sketch12.addGeometry(Part.ArcOfCircle(Part.Circle(App.Vector(39.5, 9, 0), App.Vector(0, 0, 1), 5), math.radians(-44), math.radians(44)), False)
sketch12.addGeometry(Part.Circle(App.Vector(39.5, 9, 0), App.Vector(0, 0, 1), 2), False)
sketch12.addGeometry(Part.LineSegment(App.Vector(-32, -24, 0), App.Vector(-32, 2, 0)), False)
sketch12.addGeometry(Part.LineSegment(App.Vector(-32, 2, 0), App.Vector(-43, -7.4, 0)), False)
sketch12.addGeometry(Part.ArcOfCircle(Part.Circle(App.Vector(-39.5, -11, 0), App.Vector(0, 0, 1), 5), math.radians(134), math.radians(226)), False)
sketch12.addGeometry(Part.LineSegment(App.Vector(-43, -14.6, 0), App.Vector(-32, -24, 0)), False)
sketch12.addGeometry(Part.Circle(App.Vector(-39.5, -11, 0), App.Vector(0, 0, 1), 2), False)
sketch12.addConstraint(Sketcher.Constraint("Coincident", 0, 2, 1, 1))
sketch12.addConstraint(Sketcher.Constraint("Coincident", 1, 2, 2, 1))
sketch12.addConstraint(Sketcher.Constraint("Tangent", 2, 2, 3, 1))
sketch12.addConstraint(Sketcher.Constraint("Tangent", 3, 2, 0, 1))
sketch12.addConstraint(Sketcher.Constraint("Coincident", 5, 2, 6, 1))
sketch12.addConstraint(Sketcher.Constraint("Coincident", 6, 2, 7, 1))
sketch12.addConstraint(Sketcher.Constraint("Coincident", 7, 2, 8, 1))
sketch12.addConstraint(Sketcher.Constraint("Coincident", 8, 2, 5, 1))
sketch12.addConstraint(Sketcher.Constraint("Vertical", 1))
sketch12.addConstraint(Sketcher.Constraint("Vertical", 5))
sketch12.addConstraint(Sketcher.Constraint("Coincident", 4, 3, 3, 3))
sketch12.addConstraint(Sketcher.Constraint("Coincident", 9, 3, 7, 3))
sketch12.addConstraint(Sketcher.Constraint("Equal", 3, 7))
sketch12.addConstraint(Sketcher.Constraint("Equal", 4, 9))
sketch12.addConstraint(Sketcher.Constraint("Symmetric", 0, 2, 8, 2, -1, 1))
sketch12.addConstraint(Sketcher.Constraint("Vertical", 2, 2, 3, 2))
sketch12.addConstraint(Sketcher.Constraint("Vertical", 6, 2, 7, 2))
sketch12.addConstraint(Sketcher.Constraint("Equal", 6, 8))
sketch12.addConstraint(Sketcher.Constraint("Diameter", 4, 4.0))
sketch12.addConstraint(Sketcher.Constraint("Radius", 3, 5.0))
sketch12.addConstraint(Sketcher.Constraint("DistanceY", 1, 2, 1, 1, 30.0))
sketch12.addConstraint(Sketcher.Constraint("DistanceY", 5, 1, 5, 2, 26.0))
sketch12.addConstraint(Sketcher.Constraint("DistanceY", -1, 1, 3, 3, 9.0))
sketch12.addConstraint(Sketcher.Constraint("DistanceX", -1, 1, 0, 2, 32.0))
sketch12.addConstraint(Sketcher.Constraint("DistanceX", 7, 3, 4, 3, 79.0))
sketch12.addConstraint(Sketcher.Constraint("DistanceX", -1, 1, 3, 3, 39.5))
sketch12.addConstraint(Sketcher.Constraint("DistanceX", 6, 2, -1, 1, 42.978939))
pad6 = doc.addObject("PartDesign::Pad", "Pad005")
body.addObject(pad6)
pad6.Profile = sketch12
pad6.Length = 4
pad6.Reversed = True
doc.recompute()

fillet2 = doc.addObject("PartDesign::Fillet", "Fillet001")
body.addObject(fillet2)
fillet2.Base = (pad6, edges_at(pad6, [(-32, 4, -11), (32, 4, 9)]))
fillet2.Radius = 3

# Sketch on XZ plane
sketch13 = doc.addObject("Sketcher::SketchObject", "Sketch012")
body.addObject(sketch13)
sketch13.AttachmentSupport = (doc.XZ_Plane, [""])
sketch13.MapMode = "FlatFace"
sketch13.AttachmentOffset = App.Placement(App.Vector(0, 0, -2.4), App.Rotation())
sketch13.addGeometry(Part.Circle(App.Vector(-24, -16, 0), App.Vector(0, 0, 1), 1.8), False)
sketch13.addGeometry(Part.Circle(App.Vector(6, 10, 0), App.Vector(0, 0, 1), 1.8), False)
sketch13.addConstraint(Sketcher.Constraint("Equal", 0, 1))
sketch13.addConstraint(Sketcher.Constraint("Diameter", 0, 3.5))
sketch13.addConstraint(Sketcher.Constraint("DistanceX", 0, 3, -1, 1, 24.0))
sketch13.addConstraint(Sketcher.Constraint("DistanceY", 0, 3, -1, 1, 16.0))
sketch13.addConstraint(Sketcher.Constraint("DistanceX", -1, 1, 1, 3, 6.0))
sketch13.addConstraint(Sketcher.Constraint("DistanceY", -1, 1, 1, 3, 10.0))
pocket7 = doc.addObject("PartDesign::Pocket", "Pocket006")
body.addObject(pocket7)
pocket7.Profile = sketch13
pocket7.Length = 2

# Sketch on XY plane
sketch14 = doc.addObject("Sketcher::SketchObject", "Sketch013")
body.addObject(sketch14)
sketch14.AttachmentSupport = (doc.XY_Plane, [""])
sketch14.MapMode = "FlatFace"
sketch14.AttachmentOffset = App.Placement(App.Vector(0, 0, 22.5), App.Rotation())
sketch14.addGeometry(Part.Circle(App.Vector(22.5, 34.5, 0), App.Vector(0, 0, 1), 2.5), False)
sketch14.addGeometry(Part.Circle(App.Vector(5.5, 34.5, 0), App.Vector(0, 0, 1), 2.5), False)
sketch14.addGeometry(Part.Circle(App.Vector(5.5, 17.5, 0), App.Vector(0, 0, 1), 2.5), False)
sketch14.addGeometry(Part.Circle(App.Vector(22.5, 17.5, 0), App.Vector(0, 0, 1), 2.5), False)
sketch14.addGeometry(Part.Circle(App.Vector(22.5, 26, 0), App.Vector(0, 0, 1), 2.5), False)
sketch14.addGeometry(Part.Circle(App.Vector(5.5, 26, 0), App.Vector(0, 0, 1), 2.5), False)
sketch14.addGeometry(Part.LineSegment(App.Vector(11, 22, 0), App.Vector(11, 30, 0)), False)
sketch14.addGeometry(Part.ArcOfCircle(Part.Circle(App.Vector(14, 30, 0), App.Vector(0, 0, 1), 3), math.radians(0), math.radians(180)), False)
sketch14.addGeometry(Part.LineSegment(App.Vector(17, 30, 0), App.Vector(17, 22, 0)), False)
sketch14.addGeometry(Part.ArcOfCircle(Part.Circle(App.Vector(14, 22, 0), App.Vector(0, 0, 1), 3), math.radians(180), math.radians(360)), False)
sketch14.addConstraint(Sketcher.Constraint("Tangent", 6, 2, 7, 2))
sketch14.addConstraint(Sketcher.Constraint("Tangent", 7, 1, 8, 1))
sketch14.addConstraint(Sketcher.Constraint("Tangent", 8, 2, 9, 2))
sketch14.addConstraint(Sketcher.Constraint("Tangent", 9, 1, 6, 1))
sketch14.addConstraint(Sketcher.Constraint("Vertical", 6))
sketch14.addConstraint(Sketcher.Constraint("Vertical", 8))
sketch14.addConstraint(Sketcher.Constraint("Equal", 0, 1))
sketch14.addConstraint(Sketcher.Constraint("Equal", 1, 2))
sketch14.addConstraint(Sketcher.Constraint("Equal", 2, 3))
sketch14.addConstraint(Sketcher.Constraint("Equal", 3, 4))
sketch14.addConstraint(Sketcher.Constraint("Equal", 4, 5))
sketch14.addConstraint(Sketcher.Constraint("Horizontal", 0, 3, 1, 3))
sketch14.addConstraint(Sketcher.Constraint("Horizontal", 2, 3, 3, 3))
sketch14.addConstraint(Sketcher.Constraint("Horizontal", 4, 3, 5, 3))
sketch14.addConstraint(Sketcher.Constraint("Vertical", 1, 3, 2, 3))
sketch14.addConstraint(Sketcher.Constraint("Vertical", 0, 3, 3, 3))
sketch14.addConstraint(Sketcher.Constraint("Vertical", 3, 3, 4, 3))
sketch14.addConstraint(Sketcher.Constraint("Vertical", 2, 3, 5, 3))
sketch14.addConstraint(Sketcher.Constraint("Diameter", 0, 5.0))
sketch14.addConstraint(Sketcher.Constraint("Radius", 7, 3.0))
sketch14.addConstraint(Sketcher.Constraint("DistanceY", 6, 1, 6, 2, 8.0))
sketch14.addConstraint(Sketcher.Constraint("DistanceY", -1, 1, 4, 3, 26.0))
sketch14.addConstraint(Sketcher.Constraint("DistanceX", -1, 1, 7, 3, 14.0))
sketch14.addConstraint(Sketcher.Constraint("DistanceY", -1, 1, 7, 3, 30.0))
sketch14.addConstraint(Sketcher.Constraint("DistanceX", -1, 1, 0, 3, 22.485281))
sketch14.addConstraint(Sketcher.Constraint("DistanceY", -1, 1, 0, 3, 34.485281))
sketch14.addConstraint(Sketcher.Constraint("DistanceX", -1, 1, 1, 3, 5.514719))
sketch14.addConstraint(Sketcher.Constraint("DistanceY", -1, 1, 2, 3, 17.514719))
pocket8 = doc.addObject("PartDesign::Pocket", "Pocket007")
body.addObject(pocket8)
pocket8.Profile = sketch14
pocket8.Length = 3
pocket8.Reversed = True

# Sketch on YZ plane
sketch15 = doc.addObject("Sketcher::SketchObject", "Sketch014")
body.addObject(sketch15)
sketch15.AttachmentSupport = (doc.YZ_Plane, [""])
sketch15.MapMode = "FlatFace"
sketch15.AttachmentOffset = App.Placement(App.Vector(0, 0, 29), App.Rotation())
add_polygon(sketch15, [(32, 8), (22, 8), (22, 10), (32, 10)])  # lines 0-3
sketch15.addConstraint(Sketcher.Constraint("Horizontal", 0))
sketch15.addConstraint(Sketcher.Constraint("Vertical", 1))
sketch15.addConstraint(Sketcher.Constraint("Horizontal", 2))
sketch15.addConstraint(Sketcher.Constraint("Vertical", 3))
sketch15.addConstraint(Sketcher.Constraint("DistanceX", 0, 2, 0, 1, 10.0))
sketch15.addConstraint(Sketcher.Constraint("DistanceY", 1, 1, 1, 2, 2.0))
sketch15.addConstraint(Sketcher.Constraint("DistanceX", -1, 1, 0, 2, 22.0))
sketch15.addConstraint(Sketcher.Constraint("DistanceY", -1, 1, 0, 2, 8.0))
pad7 = doc.addObject("PartDesign::Pad", "Pad006")
body.addObject(pad7)
pad7.Profile = sketch15
pad7.Length = 4
pad7.Reversed = True

# Sketch on XY plane
sketch16 = doc.addObject("Sketcher::SketchObject", "Sketch015")
body.addObject(sketch16)
sketch16.AttachmentSupport = (doc.XY_Plane, [""])
sketch16.MapMode = "FlatFace"
sketch16.AttachmentOffset = App.Placement(App.Vector(0, 0, 21), App.Rotation())
add_polygon(sketch16, [(-1, 32), (-1, 22), (-3, 22), (-3, 32)])  # lines 0-3
sketch16.addConstraint(Sketcher.Constraint("Vertical", 0))
sketch16.addConstraint(Sketcher.Constraint("Horizontal", 1))
sketch16.addConstraint(Sketcher.Constraint("Vertical", 2))
sketch16.addConstraint(Sketcher.Constraint("Horizontal", 3))
sketch16.addConstraint(Sketcher.Constraint("DistanceX", 1, 2, 1, 1, 2.0))
sketch16.addConstraint(Sketcher.Constraint("DistanceY", 0, 2, 0, 1, 10.0))
sketch16.addConstraint(Sketcher.Constraint("DistanceX", 0, 2, -1, 1, 1.0))
sketch16.addConstraint(Sketcher.Constraint("DistanceY", -1, 1, 0, 2, 22.0))
pad8 = doc.addObject("PartDesign::Pad", "Pad007")
body.addObject(pad8)
pad8.Profile = sketch16
pad8.Length = 13
pad8.Reversed = True

# Sketch on YZ plane
sketch17 = doc.addObject("Sketcher::SketchObject", "Sketch016")
body.addObject(sketch17)
sketch17.AttachmentSupport = (doc.YZ_Plane, [""])
sketch17.MapMode = "FlatFace"
sketch17.AttachmentOffset = App.Placement(App.Vector(0, 0, -1), App.Rotation())
add_polygon(sketch17, [(32, 10), (22, 10), (22, 8), (32, 8)])  # lines 0-3
sketch17.addConstraint(Sketcher.Constraint("Horizontal", 0))
sketch17.addConstraint(Sketcher.Constraint("Vertical", 1))
sketch17.addConstraint(Sketcher.Constraint("Horizontal", 2))
sketch17.addConstraint(Sketcher.Constraint("Vertical", 3))
sketch17.addConstraint(Sketcher.Constraint("DistanceX", 0, 2, 0, 1, 10.0))
sketch17.addConstraint(Sketcher.Constraint("DistanceY", 1, 2, 1, 1, 2.0))
sketch17.addConstraint(Sketcher.Constraint("DistanceX", -1, 1, 0, 2, 22.0))
sketch17.addConstraint(Sketcher.Constraint("DistanceY", -1, 1, 0, 2, 10.0))
pad9 = doc.addObject("PartDesign::Pad", "Pad008")
body.addObject(pad9)
pad9.Profile = sketch17
pad9.Length = 4
doc.recompute()

fillet3 = doc.addObject("PartDesign::Fillet", "Fillet002")
body.addObject(fillet3)
fillet3.Base = (pad9, edges_at(pad9, [
    (27, 32, 8),
    (27, 22, 8),
    (25, 32, 9),
    (25, 27, 8),
    (25, 22, 9),
    (-3, 22, 12.5),
    (-3, 32, 12.5),
    (-3, 27, 8),
    (0, 32, 8),
    (0, 22, 8),
    (3, 27, 8),
    (3, 32, 9),
    (3, 22, 9),
]))
fillet3.Radius = 1

doc.recompute()
